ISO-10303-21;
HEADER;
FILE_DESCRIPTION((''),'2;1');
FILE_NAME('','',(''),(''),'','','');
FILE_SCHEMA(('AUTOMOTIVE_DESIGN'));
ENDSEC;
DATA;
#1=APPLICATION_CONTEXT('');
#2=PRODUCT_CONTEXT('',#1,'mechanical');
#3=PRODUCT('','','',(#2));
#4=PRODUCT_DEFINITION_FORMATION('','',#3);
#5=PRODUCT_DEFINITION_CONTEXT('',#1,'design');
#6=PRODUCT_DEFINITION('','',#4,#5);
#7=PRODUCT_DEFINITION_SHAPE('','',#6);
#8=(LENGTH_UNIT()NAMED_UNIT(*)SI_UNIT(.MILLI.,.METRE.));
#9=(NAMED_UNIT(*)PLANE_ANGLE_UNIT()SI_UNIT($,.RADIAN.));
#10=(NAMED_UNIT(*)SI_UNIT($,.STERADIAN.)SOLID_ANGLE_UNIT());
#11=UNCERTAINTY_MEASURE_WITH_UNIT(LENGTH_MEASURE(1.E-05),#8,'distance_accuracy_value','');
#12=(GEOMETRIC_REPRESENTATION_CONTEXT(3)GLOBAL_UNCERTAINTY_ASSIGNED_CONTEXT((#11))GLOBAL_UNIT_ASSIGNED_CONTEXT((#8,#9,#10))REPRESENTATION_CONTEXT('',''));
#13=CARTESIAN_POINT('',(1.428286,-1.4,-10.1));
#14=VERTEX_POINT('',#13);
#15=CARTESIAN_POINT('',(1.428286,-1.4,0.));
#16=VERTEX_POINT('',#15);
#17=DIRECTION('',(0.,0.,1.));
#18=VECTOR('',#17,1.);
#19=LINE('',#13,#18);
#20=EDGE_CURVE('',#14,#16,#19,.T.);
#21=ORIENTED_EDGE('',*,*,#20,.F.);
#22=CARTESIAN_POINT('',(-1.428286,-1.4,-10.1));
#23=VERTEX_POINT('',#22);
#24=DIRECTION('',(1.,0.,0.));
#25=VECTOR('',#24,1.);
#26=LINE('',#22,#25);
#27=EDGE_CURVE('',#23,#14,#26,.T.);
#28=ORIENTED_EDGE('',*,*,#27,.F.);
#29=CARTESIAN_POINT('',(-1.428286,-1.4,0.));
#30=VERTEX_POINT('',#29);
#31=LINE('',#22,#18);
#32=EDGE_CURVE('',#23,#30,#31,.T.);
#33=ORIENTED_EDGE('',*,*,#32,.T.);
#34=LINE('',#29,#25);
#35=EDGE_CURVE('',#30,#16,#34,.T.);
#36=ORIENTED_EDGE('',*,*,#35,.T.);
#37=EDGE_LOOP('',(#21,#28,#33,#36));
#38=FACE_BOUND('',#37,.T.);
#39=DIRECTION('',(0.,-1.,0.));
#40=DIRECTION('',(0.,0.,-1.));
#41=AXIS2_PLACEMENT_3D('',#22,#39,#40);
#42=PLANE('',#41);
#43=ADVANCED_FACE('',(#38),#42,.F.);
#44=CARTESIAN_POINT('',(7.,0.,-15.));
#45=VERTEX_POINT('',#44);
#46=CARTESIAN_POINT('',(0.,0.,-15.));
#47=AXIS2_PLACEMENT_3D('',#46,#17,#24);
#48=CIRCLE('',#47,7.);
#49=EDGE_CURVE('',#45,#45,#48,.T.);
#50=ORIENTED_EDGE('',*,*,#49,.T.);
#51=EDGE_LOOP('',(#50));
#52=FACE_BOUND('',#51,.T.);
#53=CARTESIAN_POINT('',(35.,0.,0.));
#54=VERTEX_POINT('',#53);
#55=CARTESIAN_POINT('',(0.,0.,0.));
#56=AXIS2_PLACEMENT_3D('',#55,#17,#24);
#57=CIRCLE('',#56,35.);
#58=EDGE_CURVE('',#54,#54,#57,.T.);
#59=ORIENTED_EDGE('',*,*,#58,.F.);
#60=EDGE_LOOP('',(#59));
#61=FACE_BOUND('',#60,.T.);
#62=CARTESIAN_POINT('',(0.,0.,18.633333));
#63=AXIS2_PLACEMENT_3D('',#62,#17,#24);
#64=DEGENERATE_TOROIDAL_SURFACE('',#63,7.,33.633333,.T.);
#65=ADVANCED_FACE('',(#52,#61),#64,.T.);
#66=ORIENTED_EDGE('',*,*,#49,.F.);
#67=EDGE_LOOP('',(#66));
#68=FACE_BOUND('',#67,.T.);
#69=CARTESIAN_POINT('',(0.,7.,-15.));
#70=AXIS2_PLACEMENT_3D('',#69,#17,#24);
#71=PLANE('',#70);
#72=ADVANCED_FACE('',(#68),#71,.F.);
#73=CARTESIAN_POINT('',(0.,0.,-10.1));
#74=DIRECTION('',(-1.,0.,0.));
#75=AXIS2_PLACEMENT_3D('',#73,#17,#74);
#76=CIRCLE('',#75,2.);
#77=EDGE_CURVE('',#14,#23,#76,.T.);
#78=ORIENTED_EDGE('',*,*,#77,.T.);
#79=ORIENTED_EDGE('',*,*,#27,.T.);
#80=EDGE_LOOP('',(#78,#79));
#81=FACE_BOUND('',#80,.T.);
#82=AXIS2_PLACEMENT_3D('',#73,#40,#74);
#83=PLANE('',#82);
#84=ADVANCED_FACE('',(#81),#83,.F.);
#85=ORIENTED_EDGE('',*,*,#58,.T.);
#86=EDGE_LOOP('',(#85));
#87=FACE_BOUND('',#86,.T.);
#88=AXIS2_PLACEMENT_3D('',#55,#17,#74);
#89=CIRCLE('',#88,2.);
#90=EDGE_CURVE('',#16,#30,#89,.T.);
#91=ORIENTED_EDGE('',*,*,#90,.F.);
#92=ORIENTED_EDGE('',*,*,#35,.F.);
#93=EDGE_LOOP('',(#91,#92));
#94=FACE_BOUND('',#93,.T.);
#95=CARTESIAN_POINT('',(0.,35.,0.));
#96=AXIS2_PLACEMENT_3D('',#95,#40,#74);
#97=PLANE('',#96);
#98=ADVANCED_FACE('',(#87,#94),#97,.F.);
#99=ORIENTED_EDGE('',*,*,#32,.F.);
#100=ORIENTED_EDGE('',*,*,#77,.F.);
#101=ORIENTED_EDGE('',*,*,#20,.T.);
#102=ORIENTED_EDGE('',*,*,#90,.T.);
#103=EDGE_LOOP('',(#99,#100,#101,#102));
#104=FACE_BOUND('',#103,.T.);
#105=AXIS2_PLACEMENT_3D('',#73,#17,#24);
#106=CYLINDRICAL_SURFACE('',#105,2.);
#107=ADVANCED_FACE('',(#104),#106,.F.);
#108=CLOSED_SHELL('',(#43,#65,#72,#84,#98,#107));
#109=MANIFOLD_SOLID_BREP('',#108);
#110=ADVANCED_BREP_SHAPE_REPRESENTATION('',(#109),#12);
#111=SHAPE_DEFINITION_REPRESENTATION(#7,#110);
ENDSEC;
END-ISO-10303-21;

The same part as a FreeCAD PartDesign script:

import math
import FreeCAD as App
import Part
import Sketcher
from FreeCAD import Vector

doc = App.newDocument("Part")
body = doc.addObject("PartDesign::Body", "Body")

sketch1 = body.newObject("Sketcher::SketchObject", "Sketch")
sketch1.AttachmentSupport = (doc.getObject("YZ_Plane"), [""])
sketch1.MapMode = "FlatFace"
sketch1.addGeometry([
    Part.LineSegment(Vector(0, -15, 0), Vector(7, -15, 0)),
    Part.ArcOfCircle(Part.Circle(Vector(7, 19, 0), Vector(0, 0, 1), 34), math.radians(-90), math.radians(-34)),
    Part.LineSegment(Vector(35, 0, 0), Vector(0, 0, 0)),
    Part.LineSegment(Vector(0, 0, 0), Vector(0, -15, 0)),
], False)
sketch1.addConstraint([
    Sketcher.Constraint("Tangent", 0, 2, 1, 1),
    Sketcher.Constraint("Coincident", 1, 2, 2, 1),
    Sketcher.Constraint("Coincident", 2, 2, 3, 1),
    Sketcher.Constraint("Coincident", 3, 2, 0, 1),
    Sketcher.Constraint("Horizontal", 0),
    Sketcher.Constraint("Horizontal", 2),
    Sketcher.Constraint("Vertical", 3),
    Sketcher.Constraint("Coincident", 2, 2, -1, 1),
    Sketcher.Constraint("DistanceX", 0, 1, 0, 2, 7.0),
    Sketcher.Constraint("DistanceX", 2, 2, 2, 1, 35.0),
    Sketcher.Constraint("DistanceY", 3, 2, 3, 1, 15.0),
])
revolution = body.newObject("PartDesign::Revolution", "Revolution")
revolution.Profile = sketch1
revolution.ReferenceAxis = (sketch1, ["V_Axis"])
revolution.Angle = 360

sketch2 = body.newObject("Sketcher::SketchObject", "Sketch001")
sketch2.AttachmentSupport = (doc.getObject("XY_Plane"), [""])
sketch2.MapMode = "FlatFace"
sketch2.addGeometry([
    Part.LineSegment(Vector(-1.4, -1.4, 0), Vector(1.4, -1.4, 0)),
    Part.ArcOfCircle(Part.Circle(Vector(0, 0, 0), Vector(0, 0, 1), 2), math.radians(-44), math.radians(224)),
], False)
sketch2.addConstraint([
    Sketcher.Constraint("Coincident", 0, 1, 1, 2),
    Sketcher.Constraint("Coincident", 1, 1, 0, 2),
    Sketcher.Constraint("Horizontal", 0),
    Sketcher.Constraint("Coincident", 1, 3, -1, 1),
    Sketcher.Constraint("Radius", 1, 2.0),
    Sketcher.Constraint("DistanceY", 0, 1, -1, 1, 1.4),
])
pocket1 = body.newObject("PartDesign::Pocket", "Pocket")
pocket1.Profile = sketch2
pocket1.Length = 10.1

doc.recompute()
